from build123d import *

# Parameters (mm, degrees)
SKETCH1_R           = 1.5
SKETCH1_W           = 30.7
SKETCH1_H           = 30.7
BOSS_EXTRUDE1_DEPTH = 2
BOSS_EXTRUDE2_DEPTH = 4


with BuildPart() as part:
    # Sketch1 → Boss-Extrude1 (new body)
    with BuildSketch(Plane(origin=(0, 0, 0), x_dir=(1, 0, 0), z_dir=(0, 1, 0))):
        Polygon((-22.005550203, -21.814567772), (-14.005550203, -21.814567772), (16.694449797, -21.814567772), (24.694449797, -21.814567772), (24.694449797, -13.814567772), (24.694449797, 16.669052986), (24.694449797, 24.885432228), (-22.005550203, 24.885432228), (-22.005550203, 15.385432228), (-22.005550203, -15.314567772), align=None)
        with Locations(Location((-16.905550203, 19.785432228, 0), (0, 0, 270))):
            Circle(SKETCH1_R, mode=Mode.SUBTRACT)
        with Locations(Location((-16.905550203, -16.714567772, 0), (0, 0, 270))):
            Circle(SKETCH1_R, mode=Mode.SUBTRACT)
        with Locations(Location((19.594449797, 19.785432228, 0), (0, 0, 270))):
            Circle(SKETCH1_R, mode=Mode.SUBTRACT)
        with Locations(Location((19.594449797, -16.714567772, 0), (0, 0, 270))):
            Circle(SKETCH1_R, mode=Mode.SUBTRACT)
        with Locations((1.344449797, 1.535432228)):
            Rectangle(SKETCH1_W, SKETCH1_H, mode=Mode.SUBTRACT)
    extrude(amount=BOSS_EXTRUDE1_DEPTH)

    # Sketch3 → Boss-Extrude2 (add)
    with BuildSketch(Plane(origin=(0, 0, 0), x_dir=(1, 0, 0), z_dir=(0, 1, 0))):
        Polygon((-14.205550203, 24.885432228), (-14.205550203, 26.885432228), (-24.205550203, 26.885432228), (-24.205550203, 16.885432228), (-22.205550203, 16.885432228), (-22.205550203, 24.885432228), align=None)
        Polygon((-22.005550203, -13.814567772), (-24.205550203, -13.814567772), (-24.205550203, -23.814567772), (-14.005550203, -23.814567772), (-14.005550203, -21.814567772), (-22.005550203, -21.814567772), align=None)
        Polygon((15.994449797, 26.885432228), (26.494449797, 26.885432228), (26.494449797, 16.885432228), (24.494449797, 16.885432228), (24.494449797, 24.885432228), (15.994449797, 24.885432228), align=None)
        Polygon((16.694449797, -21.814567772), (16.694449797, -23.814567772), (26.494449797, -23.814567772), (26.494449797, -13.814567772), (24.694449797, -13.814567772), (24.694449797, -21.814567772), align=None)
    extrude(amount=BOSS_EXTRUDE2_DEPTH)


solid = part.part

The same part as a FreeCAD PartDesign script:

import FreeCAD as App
import Part
import Sketcher
from FreeCAD import Vector


def add_polygon(sketch, points):
    """Adds a closed chain of lines whose ends are joined by coincident constraints."""
    first, n = sketch.GeometryCount, len(points)
    for a, b in zip(points, points[1:] + points[:1]):
        sketch.addGeometry(Part.LineSegment(App.Vector(*a, 0), App.Vector(*b, 0)), False)
    for i in range(n):
        sketch.addConstraint(Sketcher.Constraint("Coincident", first + i, 2, first + (i + 1) % n, 1))

doc = App.newDocument("Part")
body = doc.addObject("PartDesign::Body", "Body")

# Sketch on XZ plane
sketch1 = body.newObject("Sketcher::SketchObject", "Sketch")
sketch1.AttachmentSupport = (doc.getObject("XZ_Plane"), [""])
sketch1.MapMode = "FlatFace"
add_polygon(sketch1, [(-22, 21.8), (24.7, 21.8), (24.7, -24.9), (-22, -24.9)])  # lines 0-3
sketch1.addGeometry(Part.Circle(Vector(-16.9, 16.7, 0), Vector(0, 0, 1), 1.5), False)  # 4
sketch1.addGeometry(Part.Circle(Vector(19.6, 16.7, 0), Vector(0, 0, 1), 1.5), False)  # 5
sketch1.addGeometry(Part.Circle(Vector(-16.9, -19.8, 0), Vector(0, 0, 1), 1.5), False)  # 6
add_polygon(sketch1, [(16.7, 13.8), (-14, 13.8), (-14, -16.9), (16.7, -16.9)])  # lines 7-10
sketch1.addGeometry(Part.Circle(Vector(19.6, -19.8, 0), Vector(0, 0, 1), 1.5), False)  # 11
sketch1.addConstraint([
    Sketcher.Constraint("Horizontal", 0),
    Sketcher.Constraint("Vertical", 1),
    Sketcher.Constraint("Horizontal", 2),
    Sketcher.Constraint("Vertical", 3),
    Sketcher.Constraint("Horizontal", 7),
    Sketcher.Constraint("Vertical", 8),
    Sketcher.Constraint("Horizontal", 9),
    Sketcher.Constraint("Vertical", 10),
    Sketcher.Constraint("Equal", 4, 5),
    Sketcher.Constraint("Equal", 5, 6),
    Sketcher.Constraint("Equal", 6, 11),
    Sketcher.Constraint("Horizontal", 4, 3, 5, 3),
    Sketcher.Constraint("Horizontal", 6, 3, 11, 3),
    Sketcher.Constraint("Vertical", 4, 3, 6, 3),
    Sketcher.Constraint("Vertical", 5, 3, 11, 3),
    Sketcher.Constraint("Equal", 2, 1),
    Sketcher.Constraint("Equal", 9, 8),
    Sketcher.Constraint("Diameter", 4, 3.0),
    Sketcher.Constraint("DistanceX", 0, 1, 0, 2, 46.7),
    Sketcher.Constraint("DistanceX", 7, 2, 7, 1, 30.7),
    Sketcher.Constraint("DistanceX", 3, 2, 7, 2, 8.0),
    Sketcher.Constraint("DistanceY", 7, 2, 3, 2, 8.0),
    Sketcher.Constraint("DistanceX", 4, 3, 5, 3, 36.5),
    Sketcher.Constraint("DistanceY", 6, 3, 4, 3, 36.5),
    Sketcher.Constraint("DistanceX", 5, 3, 0, 2, 5.1),
    Sketcher.Constraint("DistanceY", 5, 3, 0, 2, 5.1),
    Sketcher.Constraint("DistanceX", 4, 3, -1, 1, 16.90555),
    Sketcher.Constraint("DistanceY", -1, 1, 4, 3, 16.714568),
])
pad1 = body.newObject("PartDesign::Pad", "Pad")
pad1.Profile = sketch1
pad1.Length = 2
pad1.Reversed = True

# Sketch on XZ plane
sketch2 = body.newObject("Sketcher::SketchObject", "Sketch001")
sketch2.AttachmentSupport = (doc.getObject("XZ_Plane"), [""])
sketch2.MapMode = "FlatFace"
add_polygon(sketch2, [(-14.2, -24.9), (-14.2, -26.9), (-24.2, -26.9), (-24.2, -16.9), (-22.2, -16.9), (-22.2, -24.9)])  # lines 0-5
add_polygon(sketch2, [(-22, 13.8), (-24.2, 13.8), (-24.2, 23.8), (-14, 23.8), (-14, 21.8), (-22, 21.8)])  # lines 6-11
add_polygon(sketch2, [(26.5, -26.9), (16, -26.9), (16, -24.9), (24.5, -24.9), (24.5, -16.9), (26.5, -16.9)])  # lines 12-17
add_polygon(sketch2, [(16.7, 21.8), (16.7, 23.8), (26.5, 23.8), (26.5, 13.8), (24.7, 13.8), (24.7, 21.8)])  # lines 18-23
sketch2.addConstraint([
    Sketcher.Constraint("Vertical", 0),
    Sketcher.Constraint("Horizontal", 1),
    Sketcher.Constraint("Vertical", 2),
    Sketcher.Constraint("Horizontal", 3),
    Sketcher.Constraint("Vertical", 4),
    Sketcher.Constraint("Horizontal", 5),
    Sketcher.Constraint("Horizontal", 6),
    Sketcher.Constraint("Vertical", 7),
    Sketcher.Constraint("Horizontal", 8),
    Sketcher.Constraint("Vertical", 9),
    Sketcher.Constraint("Horizontal", 10),
    Sketcher.Constraint("Vertical", 11),
    Sketcher.Constraint("Horizontal", 12),
    Sketcher.Constraint("Vertical", 13),
    Sketcher.Constraint("Horizontal", 14),
    Sketcher.Constraint("Vertical", 15),
    Sketcher.Constraint("Horizontal", 16),
    Sketcher.Constraint("Vertical", 17),
    Sketcher.Constraint("Vertical", 18),
    Sketcher.Constraint("Horizontal", 19),
    Sketcher.Constraint("Vertical", 20),
    Sketcher.Constraint("Horizontal", 21),
    Sketcher.Constraint("Vertical", 22),
    Sketcher.Constraint("Horizontal", 23),
    Sketcher.Constraint("Horizontal", 1, 2, 12, 2),
    Sketcher.Constraint("Horizontal", 5, 2, 13, 2),
    Sketcher.Constraint("Horizontal", 3, 2, 15, 2),
    Sketcher.Constraint("Horizontal", 8, 2, 18, 2),
    Sketcher.Constraint("Horizontal", 11, 2, 20, 2),
    Sketcher.Constraint("Horizontal", 10, 2, 22, 2),
    Sketcher.Constraint("Vertical", 2, 2, 6, 2),
    Sketcher.Constraint("Vertical", 17, 2, 19, 2),
    Sketcher.Constraint("Equal", 5, 10),
    Sketcher.Constraint("Equal", 3, 16),
    Sketcher.Constraint("Equal", 10, 23),
    Sketcher.Constraint("Equal", 16, 0),
    Sketcher.Constraint("Equal", 1, 2),
    Sketcher.Constraint("Equal", 2, 7),
    Sketcher.Constraint("Equal", 0, 9),
    Sketcher.Constraint("DistanceX", 1, 2, 1, 1, 10.0),
    Sketcher.Constraint("DistanceX", 3, 1, 3, 2, 2.0),
    Sketcher.Constraint("DistanceX", 6, 2, 6, 1, 2.2),
    Sketcher.Constraint("DistanceX", 12, 2, 12, 1, 10.5),
    Sketcher.Constraint("DistanceX", 19, 1, 19, 2, 9.8),
    Sketcher.Constraint("DistanceY", 2, 2, 6, 2, 30.7),
    Sketcher.Constraint("DistanceX", 0, 2, 12, 2, 30.2),
    Sketcher.Constraint("DistanceX", 0, 2, -1, 1, 14.20555),
    Sketcher.Constraint("DistanceY", 0, 2, -1, 1, 26.885432),
])
pad2 = body.newObject("PartDesign::Pad", "Pad001")
pad2.Profile = sketch2
pad2.Length = 4
pad2.Reversed = True

doc.recompute()
